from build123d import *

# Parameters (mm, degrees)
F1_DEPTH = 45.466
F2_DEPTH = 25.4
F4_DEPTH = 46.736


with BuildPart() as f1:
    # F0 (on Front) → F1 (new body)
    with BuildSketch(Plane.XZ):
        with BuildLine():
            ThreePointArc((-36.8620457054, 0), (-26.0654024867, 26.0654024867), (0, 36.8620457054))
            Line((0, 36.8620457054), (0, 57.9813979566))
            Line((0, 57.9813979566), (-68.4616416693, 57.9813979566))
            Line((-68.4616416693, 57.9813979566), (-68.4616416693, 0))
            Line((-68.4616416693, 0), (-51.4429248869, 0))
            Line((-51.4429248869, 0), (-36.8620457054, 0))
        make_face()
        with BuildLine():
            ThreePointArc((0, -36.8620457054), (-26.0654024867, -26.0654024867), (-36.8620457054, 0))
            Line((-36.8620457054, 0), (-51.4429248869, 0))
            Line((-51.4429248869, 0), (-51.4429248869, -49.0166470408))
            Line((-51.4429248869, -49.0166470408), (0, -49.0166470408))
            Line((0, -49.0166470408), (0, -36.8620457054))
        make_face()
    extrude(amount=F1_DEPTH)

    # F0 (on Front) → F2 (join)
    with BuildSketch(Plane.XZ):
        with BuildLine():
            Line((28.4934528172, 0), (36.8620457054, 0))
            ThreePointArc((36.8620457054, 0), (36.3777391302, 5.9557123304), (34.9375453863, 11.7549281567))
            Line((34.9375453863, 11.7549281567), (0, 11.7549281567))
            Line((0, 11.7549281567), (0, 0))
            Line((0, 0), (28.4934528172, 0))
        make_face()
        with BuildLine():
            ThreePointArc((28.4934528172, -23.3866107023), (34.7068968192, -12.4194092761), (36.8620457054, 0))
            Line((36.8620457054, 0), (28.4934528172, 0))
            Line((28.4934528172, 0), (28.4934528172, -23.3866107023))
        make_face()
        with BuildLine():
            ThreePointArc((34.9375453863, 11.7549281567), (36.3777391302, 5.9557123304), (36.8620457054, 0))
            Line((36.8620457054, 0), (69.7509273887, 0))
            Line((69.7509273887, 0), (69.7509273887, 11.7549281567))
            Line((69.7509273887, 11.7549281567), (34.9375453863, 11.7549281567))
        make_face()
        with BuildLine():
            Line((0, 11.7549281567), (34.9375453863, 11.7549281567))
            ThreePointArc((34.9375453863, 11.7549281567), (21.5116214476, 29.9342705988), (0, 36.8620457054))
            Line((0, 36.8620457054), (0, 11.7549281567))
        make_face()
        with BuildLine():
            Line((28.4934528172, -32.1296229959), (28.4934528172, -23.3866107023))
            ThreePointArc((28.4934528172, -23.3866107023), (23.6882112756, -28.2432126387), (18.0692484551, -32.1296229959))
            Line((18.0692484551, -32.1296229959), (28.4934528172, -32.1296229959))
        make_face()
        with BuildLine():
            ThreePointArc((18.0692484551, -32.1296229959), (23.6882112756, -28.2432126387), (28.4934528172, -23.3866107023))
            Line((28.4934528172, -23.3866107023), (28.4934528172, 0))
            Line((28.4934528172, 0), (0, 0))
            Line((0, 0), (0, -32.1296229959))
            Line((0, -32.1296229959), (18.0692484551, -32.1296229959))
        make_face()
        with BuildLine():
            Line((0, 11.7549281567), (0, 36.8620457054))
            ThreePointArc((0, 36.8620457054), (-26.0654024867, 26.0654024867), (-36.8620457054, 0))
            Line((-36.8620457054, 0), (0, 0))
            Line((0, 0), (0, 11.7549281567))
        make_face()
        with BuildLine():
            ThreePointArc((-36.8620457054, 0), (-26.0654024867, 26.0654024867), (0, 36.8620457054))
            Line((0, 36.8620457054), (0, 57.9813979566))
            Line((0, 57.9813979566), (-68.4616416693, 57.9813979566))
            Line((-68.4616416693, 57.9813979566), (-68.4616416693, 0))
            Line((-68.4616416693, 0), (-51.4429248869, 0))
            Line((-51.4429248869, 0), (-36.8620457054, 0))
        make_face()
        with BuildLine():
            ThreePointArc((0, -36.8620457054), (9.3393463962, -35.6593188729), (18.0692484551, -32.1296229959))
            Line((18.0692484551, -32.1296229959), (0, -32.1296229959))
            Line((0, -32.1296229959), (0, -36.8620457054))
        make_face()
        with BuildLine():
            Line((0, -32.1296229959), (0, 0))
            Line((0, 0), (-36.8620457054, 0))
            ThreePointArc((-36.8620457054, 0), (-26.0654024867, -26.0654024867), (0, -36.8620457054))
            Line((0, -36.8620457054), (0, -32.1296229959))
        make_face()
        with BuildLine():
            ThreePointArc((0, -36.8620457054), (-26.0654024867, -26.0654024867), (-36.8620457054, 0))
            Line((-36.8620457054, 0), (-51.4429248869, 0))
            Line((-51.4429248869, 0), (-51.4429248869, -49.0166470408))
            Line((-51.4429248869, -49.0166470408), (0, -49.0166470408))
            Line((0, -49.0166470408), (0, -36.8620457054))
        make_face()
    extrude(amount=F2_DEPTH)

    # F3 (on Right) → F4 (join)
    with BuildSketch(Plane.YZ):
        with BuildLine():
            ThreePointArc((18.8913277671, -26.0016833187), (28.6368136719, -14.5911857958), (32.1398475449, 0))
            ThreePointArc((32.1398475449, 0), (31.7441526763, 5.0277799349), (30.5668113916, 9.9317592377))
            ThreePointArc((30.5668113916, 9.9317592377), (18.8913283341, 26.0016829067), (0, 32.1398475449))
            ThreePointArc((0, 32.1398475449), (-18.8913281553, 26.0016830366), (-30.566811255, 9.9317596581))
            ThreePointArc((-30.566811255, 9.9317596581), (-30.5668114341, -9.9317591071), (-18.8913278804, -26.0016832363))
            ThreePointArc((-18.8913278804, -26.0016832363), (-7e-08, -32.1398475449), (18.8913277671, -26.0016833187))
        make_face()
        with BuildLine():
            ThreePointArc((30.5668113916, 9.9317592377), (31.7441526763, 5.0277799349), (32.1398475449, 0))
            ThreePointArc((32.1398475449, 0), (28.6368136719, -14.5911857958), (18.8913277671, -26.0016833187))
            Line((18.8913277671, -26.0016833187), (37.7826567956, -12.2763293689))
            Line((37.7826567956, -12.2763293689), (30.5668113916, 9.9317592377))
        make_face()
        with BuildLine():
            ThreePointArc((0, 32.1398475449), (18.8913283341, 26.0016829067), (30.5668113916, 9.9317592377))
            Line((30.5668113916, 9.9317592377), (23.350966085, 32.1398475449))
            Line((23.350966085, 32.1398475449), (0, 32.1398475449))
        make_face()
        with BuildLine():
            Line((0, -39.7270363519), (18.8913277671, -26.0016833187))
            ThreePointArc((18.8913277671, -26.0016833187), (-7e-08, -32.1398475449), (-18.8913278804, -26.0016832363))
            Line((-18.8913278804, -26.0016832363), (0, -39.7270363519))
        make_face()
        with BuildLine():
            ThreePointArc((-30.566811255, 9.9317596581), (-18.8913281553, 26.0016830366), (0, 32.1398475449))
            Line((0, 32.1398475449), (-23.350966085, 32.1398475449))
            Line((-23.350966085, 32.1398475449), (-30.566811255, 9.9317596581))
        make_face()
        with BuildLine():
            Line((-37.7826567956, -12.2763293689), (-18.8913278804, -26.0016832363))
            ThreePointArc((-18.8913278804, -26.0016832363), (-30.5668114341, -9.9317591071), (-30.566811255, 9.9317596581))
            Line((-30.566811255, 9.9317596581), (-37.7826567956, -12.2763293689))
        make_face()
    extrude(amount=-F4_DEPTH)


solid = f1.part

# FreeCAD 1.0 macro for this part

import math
import FreeCAD as App
import Part
import Sketcher

V = App.Vector
Q = App.Units.Quantity


def add_polygon(sketch, points):
    """Adds a closed chain of lines whose ends are joined by coincident constraints."""
    first, n = sketch.GeometryCount, len(points)
    for a, b in zip(points, points[1:] + points[:1]):
        sketch.addGeometry(Part.LineSegment(App.Vector(*a, 0), App.Vector(*b, 0)), False)
    for i in range(n):
        sketch.addConstraint(Sketcher.Constraint("Coincident", first + i, 2, first + (i + 1) % n, 1))

doc = App.newDocument("Part")
body = doc.addObject("PartDesign::Body", "Body")

# Sketch on XZ plane
sketch1 = doc.addObject("Sketcher::SketchObject", "Sketch")
body.addObject(sketch1)
sketch1.AttachmentSupport = (doc.XZ_Plane, [""])
sketch1.MapMode = "FlatFace"
sketch1.addGeometry(Part.LineSegment(V(0, 37, 0), V(0, 58, 0)), False)
sketch1.addGeometry(Part.LineSegment(V(0, 58, 0), V(-68, 58, 0)), False)
sketch1.addGeometry(Part.LineSegment(V(-68, 58, 0), V(-68, 0, 0)), False)
sketch1.addGeometry(Part.LineSegment(V(-68, 0, 0), V(-51, 0, 0)), False)
sketch1.addGeometry(Part.LineSegment(V(-51, 0, 0), V(-51, -49, 0)), False)
sketch1.addGeometry(Part.LineSegment(V(-51, -49, 0), V(0, -49, 0)), False)
sketch1.addGeometry(Part.LineSegment(V(0, -49, 0), V(0, -37, 0)), False)
sketch1.addGeometry(Part.ArcOfCircle(Part.Circle(V(0, 0, 0), V(0, 0, 1), 37), math.radians(90), math.radians(270)), False)
sketch1.addConstraint(Sketcher.Constraint("Coincident", 0, 2, 1, 1))
sketch1.addConstraint(Sketcher.Constraint("Coincident", 1, 2, 2, 1))
sketch1.addConstraint(Sketcher.Constraint("Coincident", 2, 2, 3, 1))
sketch1.addConstraint(Sketcher.Constraint("Coincident", 3, 2, 4, 1))
sketch1.addConstraint(Sketcher.Constraint("Coincident", 4, 2, 5, 1))
sketch1.addConstraint(Sketcher.Constraint("Coincident", 5, 2, 6, 1))
sketch1.addConstraint(Sketcher.Constraint("Coincident", 6, 2, 7, 2))
sketch1.addConstraint(Sketcher.Constraint("Coincident", 7, 1, 0, 1))
sketch1.addConstraint(Sketcher.Constraint("Vertical", 0))
sketch1.addConstraint(Sketcher.Constraint("Horizontal", 1))
sketch1.addConstraint(Sketcher.Constraint("Vertical", 2))
sketch1.addConstraint(Sketcher.Constraint("Horizontal", 3))
sketch1.addConstraint(Sketcher.Constraint("Vertical", 4))
sketch1.addConstraint(Sketcher.Constraint("Horizontal", 5))
sketch1.addConstraint(Sketcher.Constraint("Vertical", 6))
sketch1.addConstraint(Sketcher.Constraint("Coincident", 7, 3, -1, 1))
sketch1.addConstraint(Sketcher.Constraint("PointOnObject", 0, 2, -2))
sketch1.addConstraint(Sketcher.Constraint("PointOnObject", 2, 2, -1))
sketch1.addConstraint(Sketcher.Constraint("PointOnObject", 5, 2, -2))
sketch1.addConstraint(Sketcher.Constraint("DistanceY", 6, 1, 6, 2, 12.154601))
sketch1.addConstraint(Sketcher.Constraint("Radius", 7, 36.862046))
sketch1.addConstraint(Sketcher.Constraint("DistanceX", 1, 2, 1, 1, 68.461642))
sketch1.addConstraint(Sketcher.Constraint("DistanceX", 3, 1, 3, 2, 17.018717))
sketch1.addConstraint(Sketcher.Constraint("DistanceY", 0, 1, 0, 2, 21.119352))
pad1 = doc.addObject("PartDesign::Pad", "Pad")
body.addObject(pad1)
pad1.Profile = sketch1
pad1.Length = Q("1.79 in")

# Sketch on XZ plane
sketch2 = doc.addObject("Sketcher::SketchObject", "Sketch001")
body.addObject(sketch2)
sketch2.AttachmentSupport = (doc.XZ_Plane, [""])
sketch2.MapMode = "FlatFace"
sketch2.addGeometry(Part.ArcOfCircle(Part.Circle(V(0, 0, 0), V(0, 0, 1), 37), math.radians(-39), math.radians(0)), False)
sketch2.addGeometry(Part.LineSegment(V(37, 0, 0), V(70, 0, 0)), False)
sketch2.addGeometry(Part.LineSegment(V(70, 0, 0), V(70, 12, 0)), False)
sketch2.addGeometry(Part.LineSegment(V(70, 12, 0), V(35, 12, 0)), False)
sketch2.addGeometry(Part.ArcOfCircle(Part.Circle(V(0, 0, 0), V(0, 0, 1), 37), math.radians(19), math.radians(90)), False)
sketch2.addGeometry(Part.LineSegment(V(0, 37, 0), V(0, 58, 0)), False)
sketch2.addGeometry(Part.LineSegment(V(0, 58, 0), V(-68, 58, 0)), False)
sketch2.addGeometry(Part.LineSegment(V(-68, 58, 0), V(-68, 0, 0)), False)
sketch2.addGeometry(Part.LineSegment(V(-68, 0, 0), V(-51, 0, 0)), False)
sketch2.addGeometry(Part.LineSegment(V(-51, 0, 0), V(-51, -49, 0)), False)
sketch2.addGeometry(Part.LineSegment(V(-51, -49, 0), V(0, -49, 0)), False)
sketch2.addGeometry(Part.LineSegment(V(0, -49, 0), V(0, -37, 0)), False)
sketch2.addGeometry(Part.ArcOfCircle(Part.Circle(V(0, 0, 0), V(0, 0, 1), 37), math.radians(-90), math.radians(-61)), False)
sketch2.addGeometry(Part.LineSegment(V(18, -32, 0), V(28, -32, 0)), False)
sketch2.addGeometry(Part.LineSegment(V(28, -32, 0), V(28, -23, 0)), False)
sketch2.addConstraint(Sketcher.Constraint("Coincident", 0, 2, 1, 1))
sketch2.addConstraint(Sketcher.Constraint("Coincident", 1, 2, 2, 1))
sketch2.addConstraint(Sketcher.Constraint("Coincident", 2, 2, 3, 1))
sketch2.addConstraint(Sketcher.Constraint("Coincident", 3, 2, 4, 1))
sketch2.addConstraint(Sketcher.Constraint("Coincident", 4, 2, 5, 1))
sketch2.addConstraint(Sketcher.Constraint("Coincident", 5, 2, 6, 1))
sketch2.addConstraint(Sketcher.Constraint("Coincident", 6, 2, 7, 1))
sketch2.addConstraint(Sketcher.Constraint("Coincident", 7, 2, 8, 1))
sketch2.addConstraint(Sketcher.Constraint("Coincident", 8, 2, 9, 1))
sketch2.addConstraint(Sketcher.Constraint("Coincident", 9, 2, 10, 1))
sketch2.addConstraint(Sketcher.Constraint("Coincident", 10, 2, 11, 1))
sketch2.addConstraint(Sketcher.Constraint("Coincident", 11, 2, 12, 1))
sketch2.addConstraint(Sketcher.Constraint("Coincident", 12, 2, 13, 1))
sketch2.addConstraint(Sketcher.Constraint("Coincident", 13, 2, 14, 1))
sketch2.addConstraint(Sketcher.Constraint("Coincident", 14, 2, 0, 1))
sketch2.addConstraint(Sketcher.Constraint("Horizontal", 1))
sketch2.addConstraint(Sketcher.Constraint("Vertical", 2))
sketch2.addConstraint(Sketcher.Constraint("Horizontal", 3))
sketch2.addConstraint(Sketcher.Constraint("Vertical", 5))
sketch2.addConstraint(Sketcher.Constraint("Horizontal", 6))
sketch2.addConstraint(Sketcher.Constraint("Vertical", 7))
sketch2.addConstraint(Sketcher.Constraint("Horizontal", 8))
sketch2.addConstraint(Sketcher.Constraint("Vertical", 9))
sketch2.addConstraint(Sketcher.Constraint("Horizontal", 10))
sketch2.addConstraint(Sketcher.Constraint("Vertical", 11))
sketch2.addConstraint(Sketcher.Constraint("Horizontal", 13))
sketch2.addConstraint(Sketcher.Constraint("Vertical", 14))
sketch2.addConstraint(Sketcher.Constraint("Coincident", 0, 3, -1, 1))
sketch2.addConstraint(Sketcher.Constraint("Coincident", 4, 3, -1, 1))
sketch2.addConstraint(Sketcher.Constraint("Coincident", 12, 3, -1, 1))
sketch2.addConstraint(Sketcher.Constraint("Equal", 0, 4))
sketch2.addConstraint(Sketcher.Constraint("Equal", 4, 12))
sketch2.addConstraint(Sketcher.Constraint("PointOnObject", 0, 2, -1))
sketch2.addConstraint(Sketcher.Constraint("PointOnObject", 4, 2, -2))
sketch2.addConstraint(Sketcher.Constraint("PointOnObject", 7, 2, -1))
sketch2.addConstraint(Sketcher.Constraint("PointOnObject", 10, 2, -2))
sketch2.addConstraint(Sketcher.Constraint("DistanceY", 11, 1, 11, 2, 12.154601))
sketch2.addConstraint(Sketcher.Constraint("Radius", 0, 36.862046))
sketch2.addConstraint(Sketcher.Constraint("DistanceX", 1, 1, 1, 2, 32.888882))
sketch2.addConstraint(Sketcher.Constraint("DistanceX", 6, 2, 6, 1, 68.461642))
sketch2.addConstraint(Sketcher.Constraint("DistanceY", 2, 1, 2, 2, 11.754928))
sketch2.addConstraint(Sketcher.Constraint("DistanceX", 8, 1, 8, 2, 17.018717))
sketch2.addConstraint(Sketcher.Constraint("DistanceX", 13, 1, 13, 2, 10.424204))
sketch2.addConstraint(Sketcher.Constraint("DistanceY", 5, 1, 5, 2, 21.119352))
sketch2.addConstraint(Sketcher.Constraint("DistanceY", 14, 1, 14, 2, 8.743012))
pad2 = doc.addObject("PartDesign::Pad", "Pad001")
body.addObject(pad2)
pad2.Profile = sketch2
pad2.Length = Q("1 in")

# Sketch on YZ plane
sketch3 = doc.addObject("Sketcher::SketchObject", "Sketch002")
body.addObject(sketch3)
sketch3.AttachmentSupport = (doc.YZ_Plane, [""])
sketch3.MapMode = "FlatFace"
add_polygon(sketch3, [(0, -40), (19, -26), (38, -12), (31, 10), (23, 32), (-23, 32), (-31, 10), (-38, -12)])  # lines 0-7
sketch3.addConstraint(Sketcher.Constraint("Horizontal", 4))
sketch3.addConstraint(Sketcher.Constraint("Symmetric", 2, 2, 5, 2, -2))
sketch3.addConstraint(Sketcher.Constraint("Symmetric", 1, 2, 6, 2, -2))
sketch3.addConstraint(Sketcher.Constraint("PointOnObject", 7, 2, -2))
sketch3.addConstraint(Sketcher.Constraint("Parallel", 0, 1))
sketch3.addConstraint(Sketcher.Constraint("Parallel", 2, 3))
sketch3.addConstraint(Sketcher.Constraint("Parallel", 5, 6))
sketch3.addConstraint(Sketcher.Constraint("Equal", 0, 1))
sketch3.addConstraint(Sketcher.Constraint("Equal", 1, 2))
sketch3.addConstraint(Sketcher.Constraint("Equal", 2, 3))
sketch3.addConstraint(Sketcher.Constraint("Angle", 0, Q("36 deg")))
sketch3.addConstraint(Sketcher.Constraint("Angle", 2, Q("108 deg")))
sketch3.addConstraint(Sketcher.Constraint("DistanceX", 4, 2, 4, 1, 46.701932))
sketch3.addConstraint(Sketcher.Constraint("DistanceY", 1, 2, -1, 1, 12.276329))
pad3 = doc.addObject("PartDesign::Pad", "Pad002")
body.addObject(pad3)
pad3.Profile = sketch3
pad3.Length = Q("1.84 in")
pad3.Reversed = True

doc.recompute()
